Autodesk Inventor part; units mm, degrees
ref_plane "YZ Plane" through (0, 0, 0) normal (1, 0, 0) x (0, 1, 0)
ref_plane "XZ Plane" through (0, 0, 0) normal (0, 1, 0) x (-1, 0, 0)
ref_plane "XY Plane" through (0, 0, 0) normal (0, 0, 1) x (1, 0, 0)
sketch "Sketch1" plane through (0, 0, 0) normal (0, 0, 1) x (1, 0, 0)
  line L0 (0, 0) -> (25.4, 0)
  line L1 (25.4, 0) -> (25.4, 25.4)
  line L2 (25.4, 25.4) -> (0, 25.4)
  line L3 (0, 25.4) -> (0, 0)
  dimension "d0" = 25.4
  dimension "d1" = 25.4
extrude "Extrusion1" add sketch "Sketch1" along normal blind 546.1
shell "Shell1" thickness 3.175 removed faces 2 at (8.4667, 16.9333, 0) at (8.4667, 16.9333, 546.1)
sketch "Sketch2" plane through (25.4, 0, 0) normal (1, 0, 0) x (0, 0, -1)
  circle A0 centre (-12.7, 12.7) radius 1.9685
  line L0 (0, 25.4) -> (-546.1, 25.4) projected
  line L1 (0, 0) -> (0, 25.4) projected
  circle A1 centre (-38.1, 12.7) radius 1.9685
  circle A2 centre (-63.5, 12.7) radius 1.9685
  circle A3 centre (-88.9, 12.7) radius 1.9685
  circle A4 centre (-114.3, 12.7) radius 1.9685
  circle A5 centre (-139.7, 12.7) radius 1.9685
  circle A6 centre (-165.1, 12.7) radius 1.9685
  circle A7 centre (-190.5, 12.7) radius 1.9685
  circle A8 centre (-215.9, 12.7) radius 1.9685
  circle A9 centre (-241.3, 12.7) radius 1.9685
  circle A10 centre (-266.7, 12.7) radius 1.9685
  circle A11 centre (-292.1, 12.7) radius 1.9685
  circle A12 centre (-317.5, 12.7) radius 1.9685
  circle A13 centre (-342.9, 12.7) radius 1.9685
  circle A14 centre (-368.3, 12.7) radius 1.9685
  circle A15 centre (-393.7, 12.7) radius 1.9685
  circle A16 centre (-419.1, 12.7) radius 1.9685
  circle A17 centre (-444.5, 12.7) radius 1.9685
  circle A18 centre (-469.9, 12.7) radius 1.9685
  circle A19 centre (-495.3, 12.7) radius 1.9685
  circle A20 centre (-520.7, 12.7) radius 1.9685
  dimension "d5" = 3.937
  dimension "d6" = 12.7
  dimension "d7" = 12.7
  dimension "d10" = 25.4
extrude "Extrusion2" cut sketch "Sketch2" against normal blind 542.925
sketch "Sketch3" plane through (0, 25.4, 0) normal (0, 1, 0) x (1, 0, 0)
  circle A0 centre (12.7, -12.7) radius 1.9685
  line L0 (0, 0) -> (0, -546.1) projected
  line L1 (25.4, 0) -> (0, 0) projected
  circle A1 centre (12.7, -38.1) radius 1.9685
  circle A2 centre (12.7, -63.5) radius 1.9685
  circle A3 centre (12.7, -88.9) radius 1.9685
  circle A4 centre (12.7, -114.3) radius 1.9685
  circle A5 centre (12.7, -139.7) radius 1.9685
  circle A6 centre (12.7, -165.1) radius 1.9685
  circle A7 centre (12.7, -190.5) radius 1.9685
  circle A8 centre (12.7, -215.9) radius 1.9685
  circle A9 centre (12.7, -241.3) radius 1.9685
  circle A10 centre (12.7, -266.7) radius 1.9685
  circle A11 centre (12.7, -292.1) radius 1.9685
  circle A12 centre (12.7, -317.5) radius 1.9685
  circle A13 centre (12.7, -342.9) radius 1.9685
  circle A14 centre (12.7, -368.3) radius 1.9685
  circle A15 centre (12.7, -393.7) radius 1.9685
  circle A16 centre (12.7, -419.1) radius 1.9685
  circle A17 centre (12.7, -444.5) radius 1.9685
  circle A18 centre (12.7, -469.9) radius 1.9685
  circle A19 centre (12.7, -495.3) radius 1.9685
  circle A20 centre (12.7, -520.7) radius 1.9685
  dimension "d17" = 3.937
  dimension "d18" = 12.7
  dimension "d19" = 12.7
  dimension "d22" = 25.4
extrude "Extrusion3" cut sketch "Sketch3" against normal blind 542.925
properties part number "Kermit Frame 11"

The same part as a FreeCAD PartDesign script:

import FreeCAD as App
import Part
import Sketcher
from FreeCAD import Vector
Q = App.Units.Quantity


def faces_at(feature, points):
    """Names of the faces that lie closest to the given points."""
    faces = feature.Shape.Faces
    near = lambda p: min(range(len(faces)), key=lambda i: faces[i].distToShape(Part.Vertex(*p))[0])
    return sorted({f"Face{near(p) + 1}" for p in points})


def add_polygon(sketch, points):
    """Adds a closed chain of lines whose ends are joined by coincident constraints."""
    first, n = sketch.GeometryCount, len(points)
    for a, b in zip(points, points[1:] + points[:1]):
        sketch.addGeometry(Part.LineSegment(App.Vector(*a, 0), App.Vector(*b, 0)), False)
    for i in range(n):
        sketch.addConstraint(Sketcher.Constraint("Coincident", first + i, 2, first + (i + 1) % n, 1))

doc = App.newDocument("Part")
body = doc.addObject("PartDesign::Body", "Body")

# Sketch on XY plane
sketch1 = doc.addObject("Sketcher::SketchObject", "Sketch")
body.addObject(sketch1)
sketch1.AttachmentSupport = (doc.XY_Plane, [""])
sketch1.MapMode = "FlatFace"
add_polygon(sketch1, [(0, 25), (0, 0), (25, 0), (25, 25)])  # lines 0-3
sketch1.addConstraint([
    Sketcher.Constraint("Vertical", 0),
    Sketcher.Constraint("Horizontal", 1),
    Sketcher.Constraint("Vertical", 2),
    Sketcher.Constraint("Horizontal", 3),
    Sketcher.Constraint("Coincident", 0, 2, -1, 1),
    Sketcher.Constraint("Equal", 3, 0),
    Sketcher.Constraint("DistanceX", 1, 1, 1, 2, Q("1 in")),
])
pad1 = doc.addObject("PartDesign::Pad", "Pad")
body.addObject(pad1)
pad1.Profile = sketch1
pad1.Length = Q("21.5 in")
doc.recompute()

thickness = doc.addObject("PartDesign::Thickness", "Thickness")
body.addObject(thickness)
thickness.Base = (pad1, faces_at(pad1, [(8.467, 16.933, 0), (8.467, 16.933, 546.1)]))
thickness.Value = Q("0.125 in")
thickness.Reversed = True
thickness.Join = "Intersection"

# Sketch on YZ plane
sketch2 = doc.addObject("Sketcher::SketchObject", "Sketch001")
body.addObject(sketch2)
sketch2.AttachmentSupport = (doc.YZ_Plane, [""])
sketch2.MapMode = "FlatFace"
sketch2.AttachmentOffset = App.Placement(Vector(0, 0, 1 * 25.4), App.Rotation())
sketch2.addGeometry([
    Part.Circle(Vector(12.7, 12.7, 0), Vector(0, 0, 1), 2),  # 0
    Part.Circle(Vector(12.7, 38.1, 0), Vector(0, 0, 1), 2),  # 1
    Part.Circle(Vector(12.7, 63.5, 0), Vector(0, 0, 1), 2),  # 2
    Part.Circle(Vector(12.7, 88.9, 0), Vector(0, 0, 1), 2),  # 3
    Part.Circle(Vector(12.7, 114.3, 0), Vector(0, 0, 1), 2),  # 4
    Part.Circle(Vector(12.7, 139.7, 0), Vector(0, 0, 1), 2),  # 5
    Part.Circle(Vector(12.7, 165.1, 0), Vector(0, 0, 1), 2),  # 6
    Part.Circle(Vector(12.7, 190.5, 0), Vector(0, 0, 1), 2),  # 7
    Part.Circle(Vector(12.7, 215.9, 0), Vector(0, 0, 1), 2),  # 8
    Part.Circle(Vector(12.7, 241.3, 0), Vector(0, 0, 1), 2),  # 9
    Part.Circle(Vector(12.7, 266.7, 0), Vector(0, 0, 1), 2),  # 10
    Part.Circle(Vector(12.7, 292.1, 0), Vector(0, 0, 1), 2),  # 11
    Part.Circle(Vector(12.7, 317.5, 0), Vector(0, 0, 1), 2),  # 12
    Part.Circle(Vector(12.7, 342.9, 0), Vector(0, 0, 1), 2),  # 13
    Part.Circle(Vector(12.7, 368.3, 0), Vector(0, 0, 1), 2),  # 14
    Part.Circle(Vector(12.7, 393.7, 0), Vector(0, 0, 1), 2),  # 15
    Part.Circle(Vector(12.7, 419.1, 0), Vector(0, 0, 1), 2),  # 16
    Part.Circle(Vector(12.7, 444.5, 0), Vector(0, 0, 1), 2),  # 17
    Part.Circle(Vector(12.7, 469.9, 0), Vector(0, 0, 1), 2),  # 18
    Part.Circle(Vector(12.7, 495.3, 0), Vector(0, 0, 1), 2),  # 19
    Part.Circle(Vector(12.7, 520.7, 0), Vector(0, 0, 1), 2),  # 20
], False)
sketch2.addConstraint([
    Sketcher.Constraint("Equal", 0, 1),
    Sketcher.Constraint("Equal", 1, 2),
    Sketcher.Constraint("Equal", 2, 3),
    Sketcher.Constraint("Equal", 3, 4),
    Sketcher.Constraint("Equal", 4, 5),
    Sketcher.Constraint("Equal", 5, 6),
    Sketcher.Constraint("Equal", 6, 7),
    Sketcher.Constraint("Equal", 7, 8),
    Sketcher.Constraint("Equal", 8, 9),
    Sketcher.Constraint("Equal", 9, 10),
    Sketcher.Constraint("Equal", 10, 11),
    Sketcher.Constraint("Equal", 11, 12),
    Sketcher.Constraint("Equal", 12, 13),
    Sketcher.Constraint("Equal", 13, 14),
    Sketcher.Constraint("Equal", 14, 15),
    Sketcher.Constraint("Equal", 15, 16),
    Sketcher.Constraint("Equal", 16, 17),
    Sketcher.Constraint("Equal", 17, 18),
    Sketcher.Constraint("Equal", 18, 19),
    Sketcher.Constraint("Equal", 19, 20),
    Sketcher.Constraint("Vertical", 0, 3, 1, 3),
    Sketcher.Constraint("Vertical", 1, 3, 2, 3),
    Sketcher.Constraint("Vertical", 2, 3, 3, 3),
    Sketcher.Constraint("Vertical", 3, 3, 4, 3),
    Sketcher.Constraint("Vertical", 4, 3, 5, 3),
    Sketcher.Constraint("Vertical", 5, 3, 6, 3),
    Sketcher.Constraint("Vertical", 6, 3, 7, 3),
    Sketcher.Constraint("Vertical", 7, 3, 8, 3),
    Sketcher.Constraint("Vertical", 8, 3, 9, 3),
    Sketcher.Constraint("Vertical", 9, 3, 10, 3),
    Sketcher.Constraint("Vertical", 10, 3, 11, 3),
    Sketcher.Constraint("Vertical", 11, 3, 12, 3),
    Sketcher.Constraint("Vertical", 12, 3, 13, 3),
    Sketcher.Constraint("Vertical", 13, 3, 14, 3),
    Sketcher.Constraint("Vertical", 14, 3, 15, 3),
    Sketcher.Constraint("Vertical", 15, 3, 16, 3),
    Sketcher.Constraint("Vertical", 16, 3, 17, 3),
    Sketcher.Constraint("Vertical", 17, 3, 18, 3),
    Sketcher.Constraint("Vertical", 18, 3, 19, 3),
    Sketcher.Constraint("Vertical", 19, 3, 20, 3),
    Sketcher.Constraint("Diameter", 0, Q("0.155 in")),
    Sketcher.Constraint("DistanceY", 0, 3, 1, 3, Q("1 in")),
    Sketcher.Constraint("DistanceY", 1, 3, 2, 3, Q("1 in")),
    Sketcher.Constraint("DistanceY", 2, 3, 3, 3, Q("1 in")),
    Sketcher.Constraint("DistanceY", 3, 3, 4, 3, Q("1 in")),
    Sketcher.Constraint("DistanceY", 4, 3, 5, 3, Q("1 in")),
    Sketcher.Constraint("DistanceY", 5, 3, 6, 3, Q("1 in")),
    Sketcher.Constraint("DistanceY", 6, 3, 7, 3, Q("1 in")),
    Sketcher.Constraint("DistanceY", 7, 3, 8, 3, Q("1 in")),
    Sketcher.Constraint("DistanceY", 8, 3, 9, 3, Q("1 in")),
    Sketcher.Constraint("DistanceY", 9, 3, 10, 3, Q("1 in")),
    Sketcher.Constraint("DistanceY", 10, 3, 11, 3, Q("1 in")),
    Sketcher.Constraint("DistanceY", 11, 3, 12, 3, Q("1 in")),
    Sketcher.Constraint("DistanceY", 12, 3, 13, 3, Q("1 in")),
    Sketcher.Constraint("DistanceY", 13, 3, 14, 3, Q("1 in")),
    Sketcher.Constraint("DistanceY", 14, 3, 15, 3, Q("1 in")),
    Sketcher.Constraint("DistanceY", 15, 3, 16, 3, Q("1 in")),
    Sketcher.Constraint("DistanceY", 16, 3, 17, 3, Q("1 in")),
    Sketcher.Constraint("DistanceY", 17, 3, 18, 3, Q("1 in")),
    Sketcher.Constraint("DistanceY", 18, 3, 19, 3, Q("1 in")),
    Sketcher.Constraint("DistanceY", 19, 3, 20, 3, Q("1 in")),
    Sketcher.Constraint("DistanceX", -1, 1, 0, 3, Q("0.5 in")),
    Sketcher.Constraint("DistanceY", -1, 1, 0, 3, Q("0.5 in")),
])
pocket1 = doc.addObject("PartDesign::Pocket", "Pocket")
body.addObject(pocket1)
pocket1.Profile = sketch2
pocket1.Length = Q("21.375 in")

# Sketch on XZ plane
sketch3 = doc.addObject("Sketcher::SketchObject", "Sketch002")
body.addObject(sketch3)
sketch3.AttachmentSupport = (doc.XZ_Plane, [""])
sketch3.MapMode = "FlatFace"
sketch3.AttachmentOffset = App.Placement(Vector(0, 0, -1 * 25.4), App.Rotation())
sketch3.addGeometry([
    Part.Circle(Vector(12.7, 12.7, 0), Vector(0, 0, 1), 2),  # 0
    Part.Circle(Vector(12.7, 38.1, 0), Vector(0, 0, 1), 2),  # 1
    Part.Circle(Vector(12.7, 63.5, 0), Vector(0, 0, 1), 2),  # 2
    Part.Circle(Vector(12.7, 88.9, 0), Vector(0, 0, 1), 2),  # 3
    Part.Circle(Vector(12.7, 114.3, 0), Vector(0, 0, 1), 2),  # 4
    Part.Circle(Vector(12.7, 139.7, 0), Vector(0, 0, 1), 2),  # 5
    Part.Circle(Vector(12.7, 165.1, 0), Vector(0, 0, 1), 2),  # 6
    Part.Circle(Vector(12.7, 190.5, 0), Vector(0, 0, 1), 2),  # 7
    Part.Circle(Vector(12.7, 215.9, 0), Vector(0, 0, 1), 2),  # 8
    Part.Circle(Vector(12.7, 241.3, 0), Vector(0, 0, 1), 2),  # 9
    Part.Circle(Vector(12.7, 266.7, 0), Vector(0, 0, 1), 2),  # 10
    Part.Circle(Vector(12.7, 292.1, 0), Vector(0, 0, 1), 2),  # 11
    Part.Circle(Vector(12.7, 317.5, 0), Vector(0, 0, 1), 2),  # 12
    Part.Circle(Vector(12.7, 342.9, 0), Vector(0, 0, 1), 2),  # 13
    Part.Circle(Vector(12.7, 368.3, 0), Vector(0, 0, 1), 2),  # 14
    Part.Circle(Vector(12.7, 393.7, 0), Vector(0, 0, 1), 2),  # 15
    Part.Circle(Vector(12.7, 419.1, 0), Vector(0, 0, 1), 2),  # 16
    Part.Circle(Vector(12.7, 444.5, 0), Vector(0, 0, 1), 2),  # 17
    Part.Circle(Vector(12.7, 469.9, 0), Vector(0, 0, 1), 2),  # 18
    Part.Circle(Vector(12.7, 495.3, 0), Vector(0, 0, 1), 2),  # 19
    Part.Circle(Vector(12.7, 520.7, 0), Vector(0, 0, 1), 2),  # 20
], False)
sketch3.addConstraint([
    Sketcher.Constraint("Equal", 0, 1),
    Sketcher.Constraint("Equal", 1, 2),
    Sketcher.Constraint("Equal", 2, 3),
    Sketcher.Constraint("Equal", 3, 4),
    Sketcher.Constraint("Equal", 4, 5),
    Sketcher.Constraint("Equal", 5, 6),
    Sketcher.Constraint("Equal", 6, 7),
    Sketcher.Constraint("Equal", 7, 8),
    Sketcher.Constraint("Equal", 8, 9),
    Sketcher.Constraint("Equal", 9, 10),
    Sketcher.Constraint("Equal", 10, 11),
    Sketcher.Constraint("Equal", 11, 12),
    Sketcher.Constraint("Equal", 12, 13),
    Sketcher.Constraint("Equal", 13, 14),
    Sketcher.Constraint("Equal", 14, 15),
    Sketcher.Constraint("Equal", 15, 16),
    Sketcher.Constraint("Equal", 16, 17),
    Sketcher.Constraint("Equal", 17, 18),
    Sketcher.Constraint("Equal", 18, 19),
    Sketcher.Constraint("Equal", 19, 20),
    Sketcher.Constraint("Vertical", 0, 3, 1, 3),
    Sketcher.Constraint("Vertical", 1, 3, 2, 3),
    Sketcher.Constraint("Vertical", 2, 3, 3, 3),
    Sketcher.Constraint("Vertical", 3, 3, 4, 3),
    Sketcher.Constraint("Vertical", 4, 3, 5, 3),
    Sketcher.Constraint("Vertical", 5, 3, 6, 3),
    Sketcher.Constraint("Vertical", 6, 3, 7, 3),
    Sketcher.Constraint("Vertical", 7, 3, 8, 3),
    Sketcher.Constraint("Vertical", 8, 3, 9, 3),
    Sketcher.Constraint("Vertical", 9, 3, 10, 3),
    Sketcher.Constraint("Vertical", 10, 3, 11, 3),
    Sketcher.Constraint("Vertical", 11, 3, 12, 3),
    Sketcher.Constraint("Vertical", 12, 3, 13, 3),
    Sketcher.Constraint("Vertical", 13, 3, 14, 3),
    Sketcher.Constraint("Vertical", 14, 3, 15, 3),
    Sketcher.Constraint("Vertical", 15, 3, 16, 3),
    Sketcher.Constraint("Vertical", 16, 3, 17, 3),
    Sketcher.Constraint("Vertical", 17, 3, 18, 3),
    Sketcher.Constraint("Vertical", 18, 3, 19, 3),
    Sketcher.Constraint("Vertical", 19, 3, 20, 3),
    Sketcher.Constraint("Diameter", 0, Q("0.155 in")),
    Sketcher.Constraint("DistanceY", 0, 3, 1, 3, Q("1 in")),
    Sketcher.Constraint("DistanceY", 1, 3, 2, 3, Q("1 in")),
    Sketcher.Constraint("DistanceY", 2, 3, 3, 3, Q("1 in")),
    Sketcher.Constraint("DistanceY", 3, 3, 4, 3, Q("1 in")),
    Sketcher.Constraint("DistanceY", 4, 3, 5, 3, Q("1 in")),
    Sketcher.Constraint("DistanceY", 5, 3, 6, 3, Q("1 in")),
    Sketcher.Constraint("DistanceY", 6, 3, 7, 3, Q("1 in")),
    Sketcher.Constraint("DistanceY", 7, 3, 8, 3, Q("1 in")),
    Sketcher.Constraint("DistanceY", 8, 3, 9, 3, Q("1 in")),
    Sketcher.Constraint("DistanceY", 9, 3, 10, 3, Q("1 in")),
    Sketcher.Constraint("DistanceY", 10, 3, 11, 3, Q("1 in")),
    Sketcher.Constraint("DistanceY", 11, 3, 12, 3, Q("1 in")),
    Sketcher.Constraint("DistanceY", 12, 3, 13, 3, Q("1 in")),
    Sketcher.Constraint("DistanceY", 13, 3, 14, 3, Q("1 in")),
    Sketcher.Constraint("DistanceY", 14, 3, 15, 3, Q("1 in")),
    Sketcher.Constraint("DistanceY", 15, 3, 16, 3, Q("1 in")),
    Sketcher.Constraint("DistanceY", 16, 3, 17, 3, Q("1 in")),
    Sketcher.Constraint("DistanceY", 17, 3, 18, 3, Q("1 in")),
    Sketcher.Constraint("DistanceY", 18, 3, 19, 3, Q("1 in")),
    Sketcher.Constraint("DistanceY", 19, 3, 20, 3, Q("1 in")),
    Sketcher.Constraint("DistanceX", -1, 1, 0, 3, Q("0.5 in")),
    Sketcher.Constraint("DistanceY", -1, 1, 0, 3, Q("0.5 in")),
])
pocket2 = doc.addObject("PartDesign::Pocket", "Pocket001")
body.addObject(pocket2)
pocket2.Profile = sketch3
pocket2.Length = Q("21.375 in")
pocket2.Reversed = True

doc.recompute()
